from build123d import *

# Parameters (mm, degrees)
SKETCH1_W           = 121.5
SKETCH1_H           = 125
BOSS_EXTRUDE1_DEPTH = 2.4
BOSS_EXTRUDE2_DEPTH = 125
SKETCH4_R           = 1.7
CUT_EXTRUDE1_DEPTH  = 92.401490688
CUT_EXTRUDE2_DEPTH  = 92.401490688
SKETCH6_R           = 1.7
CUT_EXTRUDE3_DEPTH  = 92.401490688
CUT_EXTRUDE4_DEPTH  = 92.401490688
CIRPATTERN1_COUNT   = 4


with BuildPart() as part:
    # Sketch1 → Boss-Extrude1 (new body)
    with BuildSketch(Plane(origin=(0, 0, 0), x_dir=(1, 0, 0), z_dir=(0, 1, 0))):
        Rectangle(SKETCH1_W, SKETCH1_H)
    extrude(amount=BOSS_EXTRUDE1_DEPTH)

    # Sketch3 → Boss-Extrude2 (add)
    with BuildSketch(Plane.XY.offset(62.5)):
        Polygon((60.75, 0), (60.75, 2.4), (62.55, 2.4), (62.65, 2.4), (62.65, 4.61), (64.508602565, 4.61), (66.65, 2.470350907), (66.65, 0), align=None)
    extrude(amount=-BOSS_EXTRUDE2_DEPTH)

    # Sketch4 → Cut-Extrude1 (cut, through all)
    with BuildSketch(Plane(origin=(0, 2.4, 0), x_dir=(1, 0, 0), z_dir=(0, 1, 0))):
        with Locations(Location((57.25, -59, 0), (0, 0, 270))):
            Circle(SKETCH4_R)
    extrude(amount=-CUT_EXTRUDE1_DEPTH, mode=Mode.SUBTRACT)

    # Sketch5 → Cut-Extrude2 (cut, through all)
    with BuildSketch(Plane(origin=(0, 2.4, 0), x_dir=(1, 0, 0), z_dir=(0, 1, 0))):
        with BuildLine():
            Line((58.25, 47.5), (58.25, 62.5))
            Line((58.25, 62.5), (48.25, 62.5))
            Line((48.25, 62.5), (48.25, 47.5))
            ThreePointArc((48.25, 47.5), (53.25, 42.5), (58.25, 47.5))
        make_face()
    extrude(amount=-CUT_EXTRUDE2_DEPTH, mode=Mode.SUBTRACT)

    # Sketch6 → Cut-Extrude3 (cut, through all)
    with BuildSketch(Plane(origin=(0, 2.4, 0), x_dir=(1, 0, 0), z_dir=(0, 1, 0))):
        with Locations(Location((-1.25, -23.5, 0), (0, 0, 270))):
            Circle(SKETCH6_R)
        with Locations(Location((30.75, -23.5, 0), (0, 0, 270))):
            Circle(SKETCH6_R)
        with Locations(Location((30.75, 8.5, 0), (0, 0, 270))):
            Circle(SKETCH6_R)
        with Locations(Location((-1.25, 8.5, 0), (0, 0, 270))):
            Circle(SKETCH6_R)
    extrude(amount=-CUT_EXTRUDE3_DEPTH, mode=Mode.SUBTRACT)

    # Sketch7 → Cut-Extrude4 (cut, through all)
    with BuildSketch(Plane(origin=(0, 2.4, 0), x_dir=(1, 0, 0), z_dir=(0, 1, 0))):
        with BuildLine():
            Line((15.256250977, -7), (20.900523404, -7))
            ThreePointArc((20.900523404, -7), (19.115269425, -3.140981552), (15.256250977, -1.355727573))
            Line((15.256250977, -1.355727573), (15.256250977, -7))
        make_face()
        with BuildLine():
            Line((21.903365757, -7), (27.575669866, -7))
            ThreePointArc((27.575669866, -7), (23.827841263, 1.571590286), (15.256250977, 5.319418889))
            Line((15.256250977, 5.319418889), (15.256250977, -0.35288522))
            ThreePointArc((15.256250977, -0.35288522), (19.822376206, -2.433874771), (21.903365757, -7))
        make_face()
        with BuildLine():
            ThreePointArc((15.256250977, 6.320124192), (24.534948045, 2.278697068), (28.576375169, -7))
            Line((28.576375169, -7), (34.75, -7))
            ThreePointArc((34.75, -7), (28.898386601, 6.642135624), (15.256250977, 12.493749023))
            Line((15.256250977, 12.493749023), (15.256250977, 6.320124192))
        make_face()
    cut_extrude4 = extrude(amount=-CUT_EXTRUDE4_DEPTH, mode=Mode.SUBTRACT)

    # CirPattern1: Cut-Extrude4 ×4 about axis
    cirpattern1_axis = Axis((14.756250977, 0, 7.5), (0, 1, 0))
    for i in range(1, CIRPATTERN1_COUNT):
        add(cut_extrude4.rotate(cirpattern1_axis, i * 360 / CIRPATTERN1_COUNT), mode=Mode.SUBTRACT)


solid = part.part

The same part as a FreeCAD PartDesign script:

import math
import FreeCAD as App
import Part
import Sketcher


def add_polygon(sketch, points):
    """Adds a closed chain of lines whose ends are joined by coincident constraints."""
    first, n = sketch.GeometryCount, len(points)
    for a, b in zip(points, points[1:] + points[:1]):
        sketch.addGeometry(Part.LineSegment(App.Vector(*a, 0), App.Vector(*b, 0)), False)
    for i in range(n):
        sketch.addConstraint(Sketcher.Constraint("Coincident", first + i, 2, first + (i + 1) % n, 1))

doc = App.newDocument("Part")
body = doc.addObject("PartDesign::Body", "Body")

# Sketch on XZ plane
sketch1 = body.newObject("Sketcher::SketchObject", "Sketch")
sketch1.AttachmentSupport = (doc.getObject("XZ_Plane"), [""])
sketch1.MapMode = "FlatFace"
add_polygon(sketch1, [(-61, -62), (-61, 62), (61, 62), (61, -62)])  # lines 0-3
sketch1.addConstraint([
    Sketcher.Constraint("Vertical", 0),
    Sketcher.Constraint("Horizontal", 1),
    Sketcher.Constraint("Vertical", 2),
    Sketcher.Constraint("Horizontal", 3),
    Sketcher.Constraint("Symmetric", 0, 2, 2, 2, -1, 1),
    Sketcher.Constraint("DistanceY", 0, 1, 0, 2, 125.0),
    Sketcher.Constraint("DistanceX", 1, 1, 1, 2, 121.5),
])
pad1 = body.newObject("PartDesign::Pad", "Pad")
pad1.Profile = sketch1
pad1.Length = 2.4
pad1.Reversed = True

# Sketch on XY plane
sketch2 = body.newObject("Sketcher::SketchObject", "Sketch001")
sketch2.AttachmentSupport = (doc.getObject("XY_Plane"), [""])
sketch2.MapMode = "FlatFace"
sketch2.AttachmentOffset = App.Placement(App.Vector(0, 0, 62.5), App.Rotation())
add_polygon(sketch2, [(60.8, 2.4), (60.8, 0), (66.7, 0), (66.7, 2.5), (64.5, 4.6), (62.6, 4.6), (62.6, 2.4)])  # lines 0-6
sketch2.addConstraint([
    Sketcher.Constraint("Vertical", 0),
    Sketcher.Constraint("Horizontal", 1),
    Sketcher.Constraint("Vertical", 2),
    Sketcher.Constraint("Horizontal", 4),
    Sketcher.Constraint("Vertical", 5),
    Sketcher.Constraint("Horizontal", 6),
    Sketcher.Constraint("PointOnObject", 0, 2, -1),
    Sketcher.Constraint("DistanceX", 1, 1, 1, 2, 5.9),
    Sketcher.Constraint("DistanceX", 6, 2, 6, 1, 1.9),
    Sketcher.Constraint("DistanceY", 0, 2, 0, 1, 2.4),
    Sketcher.Constraint("DistanceY", 5, 2, 5, 1, 2.21),
    Sketcher.Constraint("DistanceX", -1, 1, 0, 2, 60.75),
    Sketcher.Constraint("DistanceY", 2, 1, 2, 2, 2.470351),
    Sketcher.Constraint("DistanceX", 4, 2, 4, 1, 1.858603),
])
pad2 = body.newObject("PartDesign::Pad", "Pad001")
pad2.Profile = sketch2
pad2.Length = 125
pad2.Reversed = True

# Sketch on XZ plane
sketch3 = body.newObject("Sketcher::SketchObject", "Sketch002")
sketch3.AttachmentSupport = (doc.getObject("XZ_Plane"), [""])
sketch3.MapMode = "FlatFace"
sketch3.AttachmentOffset = App.Placement(App.Vector(0, 0, -2.4), App.Rotation())
sketch3.addGeometry(Part.Circle(App.Vector(57.2, 59, 0), App.Vector(0, 0, 1), 1.7), False)
sketch3.addConstraint([
    Sketcher.Constraint("Diameter", 0, 3.4),
    Sketcher.Constraint("DistanceY", -1, 1, 0, 3, 59.0),
    Sketcher.Constraint("DistanceX", -1, 1, 0, 3, 57.25),
])
pocket1 = body.newObject("PartDesign::Pocket", "Pocket")
pocket1.Profile = sketch3
pocket1.Type = "ThroughAll"
pocket1.Reversed = True

# Sketch on XZ plane
sketch4 = body.newObject("Sketcher::SketchObject", "Sketch003")
sketch4.AttachmentSupport = (doc.getObject("XZ_Plane"), [""])
sketch4.MapMode = "FlatFace"
sketch4.AttachmentOffset = App.Placement(App.Vector(0, 0, -2.4), App.Rotation())
sketch4.addGeometry([
    Part.LineSegment(App.Vector(58, -48, 0), App.Vector(58, -62, 0)),
    Part.LineSegment(App.Vector(58, -62, 0), App.Vector(48, -62, 0)),
    Part.LineSegment(App.Vector(48, -62, 0), App.Vector(48, -48, 0)),
    Part.ArcOfCircle(Part.Circle(App.Vector(53, -48, 0), App.Vector(0, 0, 1), 5), math.radians(0), math.radians(180)),
], False)
sketch4.addConstraint([
    Sketcher.Constraint("Coincident", 0, 2, 1, 1),
    Sketcher.Constraint("Coincident", 1, 2, 2, 1),
    Sketcher.Constraint("Tangent", 2, 2, 3, 2),
    Sketcher.Constraint("Tangent", 3, 1, 0, 1),
    Sketcher.Constraint("Vertical", 0),
    Sketcher.Constraint("Horizontal", 1),
    Sketcher.Constraint("Vertical", 2),
    Sketcher.Constraint("Radius", 3, 5.0),
    Sketcher.Constraint("DistanceY", 0, 2, 0, 1, 15.0),
    Sketcher.Constraint("DistanceY", 3, 3, -1, 1, 47.5),
    Sketcher.Constraint("DistanceX", -1, 1, 3, 3, 53.25),
])
pocket2 = body.newObject("PartDesign::Pocket", "Pocket001")
pocket2.Profile = sketch4
pocket2.Type = "ThroughAll"
pocket2.Reversed = True

# Sketch on XZ plane
sketch5 = body.newObject("Sketcher::SketchObject", "Sketch004")
sketch5.AttachmentSupport = (doc.getObject("XZ_Plane"), [""])
sketch5.MapMode = "FlatFace"
sketch5.AttachmentOffset = App.Placement(App.Vector(0, 0, -2.4), App.Rotation())
sketch5.addGeometry([
    Part.Circle(App.Vector(-1.2, 23.5, 0), App.Vector(0, 0, 1), 1.7),
    Part.Circle(App.Vector(30.8, 23.5, 0), App.Vector(0, 0, 1), 1.7),
    Part.Circle(App.Vector(30.8, -8.5, 0), App.Vector(0, 0, 1), 1.7),
    Part.Circle(App.Vector(-1.2, -8.5, 0), App.Vector(0, 0, 1), 1.7),
], False)
sketch5.addConstraint([
    Sketcher.Constraint("Equal", 0, 1),
    Sketcher.Constraint("Equal", 1, 2),
    Sketcher.Constraint("Equal", 2, 3),
    Sketcher.Constraint("Horizontal", 0, 3, 1, 3),
    Sketcher.Constraint("Horizontal", 2, 3, 3, 3),
    Sketcher.Constraint("Vertical", 1, 3, 2, 3),
    Sketcher.Constraint("Vertical", 0, 3, 3, 3),
    Sketcher.Constraint("Diameter", 0, 3.4),
    Sketcher.Constraint("DistanceX", 0, 3, 1, 3, 32.0),
    Sketcher.Constraint("DistanceY", 2, 3, 1, 3, 32.0),
    Sketcher.Constraint("DistanceY", -1, 1, 0, 3, 23.5),
    Sketcher.Constraint("DistanceX", 0, 3, -1, 1, 1.25),
])
pocket3 = body.newObject("PartDesign::Pocket", "Pocket002")
pocket3.Profile = sketch5
pocket3.Type = "ThroughAll"
pocket3.Reversed = True

# Sketch on XZ plane
sketch6 = body.newObject("Sketcher::SketchObject", "Sketch005")
sketch6.AttachmentSupport = (doc.getObject("XZ_Plane"), [""])
sketch6.MapMode = "FlatFace"
sketch6.AttachmentOffset = App.Placement(App.Vector(0, 0, -2.4), App.Rotation())
sketch6.addGeometry([
    Part.LineSegment(App.Vector(15, 7, 0), App.Vector(21, 7, 0)),  # 0
    Part.ArcOfCircle(Part.Circle(App.Vector(15, 7, 0), App.Vector(0, 0, 1), 6), math.radians(-85), math.radians(-5)),  # 1
    Part.LineSegment(App.Vector(15, 1, 0), App.Vector(15, 7, 0)),  # 2
    Part.LineSegment(App.Vector(22, 7, 0), App.Vector(28, 7, 0)),  # 3
    Part.ArcOfCircle(Part.Circle(App.Vector(15, 8, 0), App.Vector(0, 0, 1), 13), math.radians(-88), math.radians(-2)),  # 4
    Part.LineSegment(App.Vector(15, -5, 0), App.Vector(15, 0, 0)),  # 5
    Part.ArcOfCircle(Part.Circle(App.Vector(15, 8, 0), App.Vector(0, 0, 1), 7), math.radians(-86), math.radians(-4)),  # 6
    Part.ArcOfCircle(Part.Circle(App.Vector(15, 7, 0), App.Vector(0, 0, 1), 14), math.radians(-88), math.radians(-2)),  # 7
    Part.LineSegment(App.Vector(29, 7, 0), App.Vector(35, 7, 0)),  # 8
    Part.ArcOfCircle(Part.Circle(App.Vector(15, 7, 0), App.Vector(0, 0, 1), 20), math.radians(-89), math.radians(-1)),  # 9
    Part.LineSegment(App.Vector(15, -12, 0), App.Vector(15, -6, 0)),  # 10
], False)
sketch6.addConstraint([
    Sketcher.Constraint("Coincident", 0, 2, 1, 2),
    Sketcher.Constraint("Coincident", 1, 1, 2, 1),
    Sketcher.Constraint("Coincident", 2, 2, 0, 1),
    Sketcher.Constraint("Coincident", 3, 2, 4, 2),
    Sketcher.Constraint("Coincident", 4, 1, 5, 1),
    Sketcher.Constraint("Coincident", 5, 2, 6, 1),
    Sketcher.Constraint("Coincident", 6, 2, 3, 1),
    Sketcher.Constraint("Coincident", 7, 2, 8, 1),
    Sketcher.Constraint("Coincident", 8, 2, 9, 2),
    Sketcher.Constraint("Coincident", 9, 1, 10, 1),
    Sketcher.Constraint("Coincident", 10, 2, 7, 1),
    Sketcher.Constraint("Horizontal", 0),
    Sketcher.Constraint("Vertical", 2),
    Sketcher.Constraint("Horizontal", 3),
    Sketcher.Constraint("Vertical", 5),
    Sketcher.Constraint("Horizontal", 8),
    Sketcher.Constraint("Vertical", 10),
    Sketcher.Constraint("Coincident", 4, 3, 1, 3),
    Sketcher.Constraint("Coincident", 6, 3, 1, 3),
    Sketcher.Constraint("Coincident", 7, 3, 1, 3),
    Sketcher.Constraint("Coincident", 9, 3, 1, 3),
    Sketcher.Constraint("Horizontal", 2, 2, 3, 2),
    Sketcher.Constraint("Horizontal", 6, 2, 7, 2),
    Sketcher.Constraint("Vertical", 2, 2, 4, 1),
    Sketcher.Constraint("Vertical", 5, 2, 9, 1),
    Sketcher.Constraint("Equal", 0, 2),
    Sketcher.Constraint("Radius", 9, 20.0),
    Sketcher.Constraint("DistanceY", -1, 1, 0, 2, 7.0),
    Sketcher.Constraint("DistanceY", -1, 1, 1, 3, 7.5),
    Sketcher.Constraint("DistanceX", -1, 1, 8, 2, 34.75),
    Sketcher.Constraint("Radius", 1, 6.164583),
    Sketcher.Constraint("Radius", 4, 12.829166),
    Sketcher.Constraint("Radius", 6, 7.164583),
    Sketcher.Constraint("Radius", 7, 13.829166),
])
pocket4 = body.newObject("PartDesign::Pocket", "Pocket003")
pocket4.Profile = sketch6
pocket4.Type = "ThroughAll"
pocket4.Reversed = True
doc.recompute()

datumline = body.newObject("PartDesign::Line", "DatumLine")
datumline.Placement = App.Placement(App.Vector(14.756251, 0, 7.5), App.Rotation(App.Vector(0, 0, 1), App.Vector(0, 1, 0)))
polarpattern = body.newObject("PartDesign::PolarPattern", "PolarPattern")
polarpattern.Originals = [pocket4]
polarpattern.Axis = (datumline, [""])
polarpattern.Angle = 360
polarpattern.Occurrences = 4
body.Tip = polarpattern

doc.recompute()
